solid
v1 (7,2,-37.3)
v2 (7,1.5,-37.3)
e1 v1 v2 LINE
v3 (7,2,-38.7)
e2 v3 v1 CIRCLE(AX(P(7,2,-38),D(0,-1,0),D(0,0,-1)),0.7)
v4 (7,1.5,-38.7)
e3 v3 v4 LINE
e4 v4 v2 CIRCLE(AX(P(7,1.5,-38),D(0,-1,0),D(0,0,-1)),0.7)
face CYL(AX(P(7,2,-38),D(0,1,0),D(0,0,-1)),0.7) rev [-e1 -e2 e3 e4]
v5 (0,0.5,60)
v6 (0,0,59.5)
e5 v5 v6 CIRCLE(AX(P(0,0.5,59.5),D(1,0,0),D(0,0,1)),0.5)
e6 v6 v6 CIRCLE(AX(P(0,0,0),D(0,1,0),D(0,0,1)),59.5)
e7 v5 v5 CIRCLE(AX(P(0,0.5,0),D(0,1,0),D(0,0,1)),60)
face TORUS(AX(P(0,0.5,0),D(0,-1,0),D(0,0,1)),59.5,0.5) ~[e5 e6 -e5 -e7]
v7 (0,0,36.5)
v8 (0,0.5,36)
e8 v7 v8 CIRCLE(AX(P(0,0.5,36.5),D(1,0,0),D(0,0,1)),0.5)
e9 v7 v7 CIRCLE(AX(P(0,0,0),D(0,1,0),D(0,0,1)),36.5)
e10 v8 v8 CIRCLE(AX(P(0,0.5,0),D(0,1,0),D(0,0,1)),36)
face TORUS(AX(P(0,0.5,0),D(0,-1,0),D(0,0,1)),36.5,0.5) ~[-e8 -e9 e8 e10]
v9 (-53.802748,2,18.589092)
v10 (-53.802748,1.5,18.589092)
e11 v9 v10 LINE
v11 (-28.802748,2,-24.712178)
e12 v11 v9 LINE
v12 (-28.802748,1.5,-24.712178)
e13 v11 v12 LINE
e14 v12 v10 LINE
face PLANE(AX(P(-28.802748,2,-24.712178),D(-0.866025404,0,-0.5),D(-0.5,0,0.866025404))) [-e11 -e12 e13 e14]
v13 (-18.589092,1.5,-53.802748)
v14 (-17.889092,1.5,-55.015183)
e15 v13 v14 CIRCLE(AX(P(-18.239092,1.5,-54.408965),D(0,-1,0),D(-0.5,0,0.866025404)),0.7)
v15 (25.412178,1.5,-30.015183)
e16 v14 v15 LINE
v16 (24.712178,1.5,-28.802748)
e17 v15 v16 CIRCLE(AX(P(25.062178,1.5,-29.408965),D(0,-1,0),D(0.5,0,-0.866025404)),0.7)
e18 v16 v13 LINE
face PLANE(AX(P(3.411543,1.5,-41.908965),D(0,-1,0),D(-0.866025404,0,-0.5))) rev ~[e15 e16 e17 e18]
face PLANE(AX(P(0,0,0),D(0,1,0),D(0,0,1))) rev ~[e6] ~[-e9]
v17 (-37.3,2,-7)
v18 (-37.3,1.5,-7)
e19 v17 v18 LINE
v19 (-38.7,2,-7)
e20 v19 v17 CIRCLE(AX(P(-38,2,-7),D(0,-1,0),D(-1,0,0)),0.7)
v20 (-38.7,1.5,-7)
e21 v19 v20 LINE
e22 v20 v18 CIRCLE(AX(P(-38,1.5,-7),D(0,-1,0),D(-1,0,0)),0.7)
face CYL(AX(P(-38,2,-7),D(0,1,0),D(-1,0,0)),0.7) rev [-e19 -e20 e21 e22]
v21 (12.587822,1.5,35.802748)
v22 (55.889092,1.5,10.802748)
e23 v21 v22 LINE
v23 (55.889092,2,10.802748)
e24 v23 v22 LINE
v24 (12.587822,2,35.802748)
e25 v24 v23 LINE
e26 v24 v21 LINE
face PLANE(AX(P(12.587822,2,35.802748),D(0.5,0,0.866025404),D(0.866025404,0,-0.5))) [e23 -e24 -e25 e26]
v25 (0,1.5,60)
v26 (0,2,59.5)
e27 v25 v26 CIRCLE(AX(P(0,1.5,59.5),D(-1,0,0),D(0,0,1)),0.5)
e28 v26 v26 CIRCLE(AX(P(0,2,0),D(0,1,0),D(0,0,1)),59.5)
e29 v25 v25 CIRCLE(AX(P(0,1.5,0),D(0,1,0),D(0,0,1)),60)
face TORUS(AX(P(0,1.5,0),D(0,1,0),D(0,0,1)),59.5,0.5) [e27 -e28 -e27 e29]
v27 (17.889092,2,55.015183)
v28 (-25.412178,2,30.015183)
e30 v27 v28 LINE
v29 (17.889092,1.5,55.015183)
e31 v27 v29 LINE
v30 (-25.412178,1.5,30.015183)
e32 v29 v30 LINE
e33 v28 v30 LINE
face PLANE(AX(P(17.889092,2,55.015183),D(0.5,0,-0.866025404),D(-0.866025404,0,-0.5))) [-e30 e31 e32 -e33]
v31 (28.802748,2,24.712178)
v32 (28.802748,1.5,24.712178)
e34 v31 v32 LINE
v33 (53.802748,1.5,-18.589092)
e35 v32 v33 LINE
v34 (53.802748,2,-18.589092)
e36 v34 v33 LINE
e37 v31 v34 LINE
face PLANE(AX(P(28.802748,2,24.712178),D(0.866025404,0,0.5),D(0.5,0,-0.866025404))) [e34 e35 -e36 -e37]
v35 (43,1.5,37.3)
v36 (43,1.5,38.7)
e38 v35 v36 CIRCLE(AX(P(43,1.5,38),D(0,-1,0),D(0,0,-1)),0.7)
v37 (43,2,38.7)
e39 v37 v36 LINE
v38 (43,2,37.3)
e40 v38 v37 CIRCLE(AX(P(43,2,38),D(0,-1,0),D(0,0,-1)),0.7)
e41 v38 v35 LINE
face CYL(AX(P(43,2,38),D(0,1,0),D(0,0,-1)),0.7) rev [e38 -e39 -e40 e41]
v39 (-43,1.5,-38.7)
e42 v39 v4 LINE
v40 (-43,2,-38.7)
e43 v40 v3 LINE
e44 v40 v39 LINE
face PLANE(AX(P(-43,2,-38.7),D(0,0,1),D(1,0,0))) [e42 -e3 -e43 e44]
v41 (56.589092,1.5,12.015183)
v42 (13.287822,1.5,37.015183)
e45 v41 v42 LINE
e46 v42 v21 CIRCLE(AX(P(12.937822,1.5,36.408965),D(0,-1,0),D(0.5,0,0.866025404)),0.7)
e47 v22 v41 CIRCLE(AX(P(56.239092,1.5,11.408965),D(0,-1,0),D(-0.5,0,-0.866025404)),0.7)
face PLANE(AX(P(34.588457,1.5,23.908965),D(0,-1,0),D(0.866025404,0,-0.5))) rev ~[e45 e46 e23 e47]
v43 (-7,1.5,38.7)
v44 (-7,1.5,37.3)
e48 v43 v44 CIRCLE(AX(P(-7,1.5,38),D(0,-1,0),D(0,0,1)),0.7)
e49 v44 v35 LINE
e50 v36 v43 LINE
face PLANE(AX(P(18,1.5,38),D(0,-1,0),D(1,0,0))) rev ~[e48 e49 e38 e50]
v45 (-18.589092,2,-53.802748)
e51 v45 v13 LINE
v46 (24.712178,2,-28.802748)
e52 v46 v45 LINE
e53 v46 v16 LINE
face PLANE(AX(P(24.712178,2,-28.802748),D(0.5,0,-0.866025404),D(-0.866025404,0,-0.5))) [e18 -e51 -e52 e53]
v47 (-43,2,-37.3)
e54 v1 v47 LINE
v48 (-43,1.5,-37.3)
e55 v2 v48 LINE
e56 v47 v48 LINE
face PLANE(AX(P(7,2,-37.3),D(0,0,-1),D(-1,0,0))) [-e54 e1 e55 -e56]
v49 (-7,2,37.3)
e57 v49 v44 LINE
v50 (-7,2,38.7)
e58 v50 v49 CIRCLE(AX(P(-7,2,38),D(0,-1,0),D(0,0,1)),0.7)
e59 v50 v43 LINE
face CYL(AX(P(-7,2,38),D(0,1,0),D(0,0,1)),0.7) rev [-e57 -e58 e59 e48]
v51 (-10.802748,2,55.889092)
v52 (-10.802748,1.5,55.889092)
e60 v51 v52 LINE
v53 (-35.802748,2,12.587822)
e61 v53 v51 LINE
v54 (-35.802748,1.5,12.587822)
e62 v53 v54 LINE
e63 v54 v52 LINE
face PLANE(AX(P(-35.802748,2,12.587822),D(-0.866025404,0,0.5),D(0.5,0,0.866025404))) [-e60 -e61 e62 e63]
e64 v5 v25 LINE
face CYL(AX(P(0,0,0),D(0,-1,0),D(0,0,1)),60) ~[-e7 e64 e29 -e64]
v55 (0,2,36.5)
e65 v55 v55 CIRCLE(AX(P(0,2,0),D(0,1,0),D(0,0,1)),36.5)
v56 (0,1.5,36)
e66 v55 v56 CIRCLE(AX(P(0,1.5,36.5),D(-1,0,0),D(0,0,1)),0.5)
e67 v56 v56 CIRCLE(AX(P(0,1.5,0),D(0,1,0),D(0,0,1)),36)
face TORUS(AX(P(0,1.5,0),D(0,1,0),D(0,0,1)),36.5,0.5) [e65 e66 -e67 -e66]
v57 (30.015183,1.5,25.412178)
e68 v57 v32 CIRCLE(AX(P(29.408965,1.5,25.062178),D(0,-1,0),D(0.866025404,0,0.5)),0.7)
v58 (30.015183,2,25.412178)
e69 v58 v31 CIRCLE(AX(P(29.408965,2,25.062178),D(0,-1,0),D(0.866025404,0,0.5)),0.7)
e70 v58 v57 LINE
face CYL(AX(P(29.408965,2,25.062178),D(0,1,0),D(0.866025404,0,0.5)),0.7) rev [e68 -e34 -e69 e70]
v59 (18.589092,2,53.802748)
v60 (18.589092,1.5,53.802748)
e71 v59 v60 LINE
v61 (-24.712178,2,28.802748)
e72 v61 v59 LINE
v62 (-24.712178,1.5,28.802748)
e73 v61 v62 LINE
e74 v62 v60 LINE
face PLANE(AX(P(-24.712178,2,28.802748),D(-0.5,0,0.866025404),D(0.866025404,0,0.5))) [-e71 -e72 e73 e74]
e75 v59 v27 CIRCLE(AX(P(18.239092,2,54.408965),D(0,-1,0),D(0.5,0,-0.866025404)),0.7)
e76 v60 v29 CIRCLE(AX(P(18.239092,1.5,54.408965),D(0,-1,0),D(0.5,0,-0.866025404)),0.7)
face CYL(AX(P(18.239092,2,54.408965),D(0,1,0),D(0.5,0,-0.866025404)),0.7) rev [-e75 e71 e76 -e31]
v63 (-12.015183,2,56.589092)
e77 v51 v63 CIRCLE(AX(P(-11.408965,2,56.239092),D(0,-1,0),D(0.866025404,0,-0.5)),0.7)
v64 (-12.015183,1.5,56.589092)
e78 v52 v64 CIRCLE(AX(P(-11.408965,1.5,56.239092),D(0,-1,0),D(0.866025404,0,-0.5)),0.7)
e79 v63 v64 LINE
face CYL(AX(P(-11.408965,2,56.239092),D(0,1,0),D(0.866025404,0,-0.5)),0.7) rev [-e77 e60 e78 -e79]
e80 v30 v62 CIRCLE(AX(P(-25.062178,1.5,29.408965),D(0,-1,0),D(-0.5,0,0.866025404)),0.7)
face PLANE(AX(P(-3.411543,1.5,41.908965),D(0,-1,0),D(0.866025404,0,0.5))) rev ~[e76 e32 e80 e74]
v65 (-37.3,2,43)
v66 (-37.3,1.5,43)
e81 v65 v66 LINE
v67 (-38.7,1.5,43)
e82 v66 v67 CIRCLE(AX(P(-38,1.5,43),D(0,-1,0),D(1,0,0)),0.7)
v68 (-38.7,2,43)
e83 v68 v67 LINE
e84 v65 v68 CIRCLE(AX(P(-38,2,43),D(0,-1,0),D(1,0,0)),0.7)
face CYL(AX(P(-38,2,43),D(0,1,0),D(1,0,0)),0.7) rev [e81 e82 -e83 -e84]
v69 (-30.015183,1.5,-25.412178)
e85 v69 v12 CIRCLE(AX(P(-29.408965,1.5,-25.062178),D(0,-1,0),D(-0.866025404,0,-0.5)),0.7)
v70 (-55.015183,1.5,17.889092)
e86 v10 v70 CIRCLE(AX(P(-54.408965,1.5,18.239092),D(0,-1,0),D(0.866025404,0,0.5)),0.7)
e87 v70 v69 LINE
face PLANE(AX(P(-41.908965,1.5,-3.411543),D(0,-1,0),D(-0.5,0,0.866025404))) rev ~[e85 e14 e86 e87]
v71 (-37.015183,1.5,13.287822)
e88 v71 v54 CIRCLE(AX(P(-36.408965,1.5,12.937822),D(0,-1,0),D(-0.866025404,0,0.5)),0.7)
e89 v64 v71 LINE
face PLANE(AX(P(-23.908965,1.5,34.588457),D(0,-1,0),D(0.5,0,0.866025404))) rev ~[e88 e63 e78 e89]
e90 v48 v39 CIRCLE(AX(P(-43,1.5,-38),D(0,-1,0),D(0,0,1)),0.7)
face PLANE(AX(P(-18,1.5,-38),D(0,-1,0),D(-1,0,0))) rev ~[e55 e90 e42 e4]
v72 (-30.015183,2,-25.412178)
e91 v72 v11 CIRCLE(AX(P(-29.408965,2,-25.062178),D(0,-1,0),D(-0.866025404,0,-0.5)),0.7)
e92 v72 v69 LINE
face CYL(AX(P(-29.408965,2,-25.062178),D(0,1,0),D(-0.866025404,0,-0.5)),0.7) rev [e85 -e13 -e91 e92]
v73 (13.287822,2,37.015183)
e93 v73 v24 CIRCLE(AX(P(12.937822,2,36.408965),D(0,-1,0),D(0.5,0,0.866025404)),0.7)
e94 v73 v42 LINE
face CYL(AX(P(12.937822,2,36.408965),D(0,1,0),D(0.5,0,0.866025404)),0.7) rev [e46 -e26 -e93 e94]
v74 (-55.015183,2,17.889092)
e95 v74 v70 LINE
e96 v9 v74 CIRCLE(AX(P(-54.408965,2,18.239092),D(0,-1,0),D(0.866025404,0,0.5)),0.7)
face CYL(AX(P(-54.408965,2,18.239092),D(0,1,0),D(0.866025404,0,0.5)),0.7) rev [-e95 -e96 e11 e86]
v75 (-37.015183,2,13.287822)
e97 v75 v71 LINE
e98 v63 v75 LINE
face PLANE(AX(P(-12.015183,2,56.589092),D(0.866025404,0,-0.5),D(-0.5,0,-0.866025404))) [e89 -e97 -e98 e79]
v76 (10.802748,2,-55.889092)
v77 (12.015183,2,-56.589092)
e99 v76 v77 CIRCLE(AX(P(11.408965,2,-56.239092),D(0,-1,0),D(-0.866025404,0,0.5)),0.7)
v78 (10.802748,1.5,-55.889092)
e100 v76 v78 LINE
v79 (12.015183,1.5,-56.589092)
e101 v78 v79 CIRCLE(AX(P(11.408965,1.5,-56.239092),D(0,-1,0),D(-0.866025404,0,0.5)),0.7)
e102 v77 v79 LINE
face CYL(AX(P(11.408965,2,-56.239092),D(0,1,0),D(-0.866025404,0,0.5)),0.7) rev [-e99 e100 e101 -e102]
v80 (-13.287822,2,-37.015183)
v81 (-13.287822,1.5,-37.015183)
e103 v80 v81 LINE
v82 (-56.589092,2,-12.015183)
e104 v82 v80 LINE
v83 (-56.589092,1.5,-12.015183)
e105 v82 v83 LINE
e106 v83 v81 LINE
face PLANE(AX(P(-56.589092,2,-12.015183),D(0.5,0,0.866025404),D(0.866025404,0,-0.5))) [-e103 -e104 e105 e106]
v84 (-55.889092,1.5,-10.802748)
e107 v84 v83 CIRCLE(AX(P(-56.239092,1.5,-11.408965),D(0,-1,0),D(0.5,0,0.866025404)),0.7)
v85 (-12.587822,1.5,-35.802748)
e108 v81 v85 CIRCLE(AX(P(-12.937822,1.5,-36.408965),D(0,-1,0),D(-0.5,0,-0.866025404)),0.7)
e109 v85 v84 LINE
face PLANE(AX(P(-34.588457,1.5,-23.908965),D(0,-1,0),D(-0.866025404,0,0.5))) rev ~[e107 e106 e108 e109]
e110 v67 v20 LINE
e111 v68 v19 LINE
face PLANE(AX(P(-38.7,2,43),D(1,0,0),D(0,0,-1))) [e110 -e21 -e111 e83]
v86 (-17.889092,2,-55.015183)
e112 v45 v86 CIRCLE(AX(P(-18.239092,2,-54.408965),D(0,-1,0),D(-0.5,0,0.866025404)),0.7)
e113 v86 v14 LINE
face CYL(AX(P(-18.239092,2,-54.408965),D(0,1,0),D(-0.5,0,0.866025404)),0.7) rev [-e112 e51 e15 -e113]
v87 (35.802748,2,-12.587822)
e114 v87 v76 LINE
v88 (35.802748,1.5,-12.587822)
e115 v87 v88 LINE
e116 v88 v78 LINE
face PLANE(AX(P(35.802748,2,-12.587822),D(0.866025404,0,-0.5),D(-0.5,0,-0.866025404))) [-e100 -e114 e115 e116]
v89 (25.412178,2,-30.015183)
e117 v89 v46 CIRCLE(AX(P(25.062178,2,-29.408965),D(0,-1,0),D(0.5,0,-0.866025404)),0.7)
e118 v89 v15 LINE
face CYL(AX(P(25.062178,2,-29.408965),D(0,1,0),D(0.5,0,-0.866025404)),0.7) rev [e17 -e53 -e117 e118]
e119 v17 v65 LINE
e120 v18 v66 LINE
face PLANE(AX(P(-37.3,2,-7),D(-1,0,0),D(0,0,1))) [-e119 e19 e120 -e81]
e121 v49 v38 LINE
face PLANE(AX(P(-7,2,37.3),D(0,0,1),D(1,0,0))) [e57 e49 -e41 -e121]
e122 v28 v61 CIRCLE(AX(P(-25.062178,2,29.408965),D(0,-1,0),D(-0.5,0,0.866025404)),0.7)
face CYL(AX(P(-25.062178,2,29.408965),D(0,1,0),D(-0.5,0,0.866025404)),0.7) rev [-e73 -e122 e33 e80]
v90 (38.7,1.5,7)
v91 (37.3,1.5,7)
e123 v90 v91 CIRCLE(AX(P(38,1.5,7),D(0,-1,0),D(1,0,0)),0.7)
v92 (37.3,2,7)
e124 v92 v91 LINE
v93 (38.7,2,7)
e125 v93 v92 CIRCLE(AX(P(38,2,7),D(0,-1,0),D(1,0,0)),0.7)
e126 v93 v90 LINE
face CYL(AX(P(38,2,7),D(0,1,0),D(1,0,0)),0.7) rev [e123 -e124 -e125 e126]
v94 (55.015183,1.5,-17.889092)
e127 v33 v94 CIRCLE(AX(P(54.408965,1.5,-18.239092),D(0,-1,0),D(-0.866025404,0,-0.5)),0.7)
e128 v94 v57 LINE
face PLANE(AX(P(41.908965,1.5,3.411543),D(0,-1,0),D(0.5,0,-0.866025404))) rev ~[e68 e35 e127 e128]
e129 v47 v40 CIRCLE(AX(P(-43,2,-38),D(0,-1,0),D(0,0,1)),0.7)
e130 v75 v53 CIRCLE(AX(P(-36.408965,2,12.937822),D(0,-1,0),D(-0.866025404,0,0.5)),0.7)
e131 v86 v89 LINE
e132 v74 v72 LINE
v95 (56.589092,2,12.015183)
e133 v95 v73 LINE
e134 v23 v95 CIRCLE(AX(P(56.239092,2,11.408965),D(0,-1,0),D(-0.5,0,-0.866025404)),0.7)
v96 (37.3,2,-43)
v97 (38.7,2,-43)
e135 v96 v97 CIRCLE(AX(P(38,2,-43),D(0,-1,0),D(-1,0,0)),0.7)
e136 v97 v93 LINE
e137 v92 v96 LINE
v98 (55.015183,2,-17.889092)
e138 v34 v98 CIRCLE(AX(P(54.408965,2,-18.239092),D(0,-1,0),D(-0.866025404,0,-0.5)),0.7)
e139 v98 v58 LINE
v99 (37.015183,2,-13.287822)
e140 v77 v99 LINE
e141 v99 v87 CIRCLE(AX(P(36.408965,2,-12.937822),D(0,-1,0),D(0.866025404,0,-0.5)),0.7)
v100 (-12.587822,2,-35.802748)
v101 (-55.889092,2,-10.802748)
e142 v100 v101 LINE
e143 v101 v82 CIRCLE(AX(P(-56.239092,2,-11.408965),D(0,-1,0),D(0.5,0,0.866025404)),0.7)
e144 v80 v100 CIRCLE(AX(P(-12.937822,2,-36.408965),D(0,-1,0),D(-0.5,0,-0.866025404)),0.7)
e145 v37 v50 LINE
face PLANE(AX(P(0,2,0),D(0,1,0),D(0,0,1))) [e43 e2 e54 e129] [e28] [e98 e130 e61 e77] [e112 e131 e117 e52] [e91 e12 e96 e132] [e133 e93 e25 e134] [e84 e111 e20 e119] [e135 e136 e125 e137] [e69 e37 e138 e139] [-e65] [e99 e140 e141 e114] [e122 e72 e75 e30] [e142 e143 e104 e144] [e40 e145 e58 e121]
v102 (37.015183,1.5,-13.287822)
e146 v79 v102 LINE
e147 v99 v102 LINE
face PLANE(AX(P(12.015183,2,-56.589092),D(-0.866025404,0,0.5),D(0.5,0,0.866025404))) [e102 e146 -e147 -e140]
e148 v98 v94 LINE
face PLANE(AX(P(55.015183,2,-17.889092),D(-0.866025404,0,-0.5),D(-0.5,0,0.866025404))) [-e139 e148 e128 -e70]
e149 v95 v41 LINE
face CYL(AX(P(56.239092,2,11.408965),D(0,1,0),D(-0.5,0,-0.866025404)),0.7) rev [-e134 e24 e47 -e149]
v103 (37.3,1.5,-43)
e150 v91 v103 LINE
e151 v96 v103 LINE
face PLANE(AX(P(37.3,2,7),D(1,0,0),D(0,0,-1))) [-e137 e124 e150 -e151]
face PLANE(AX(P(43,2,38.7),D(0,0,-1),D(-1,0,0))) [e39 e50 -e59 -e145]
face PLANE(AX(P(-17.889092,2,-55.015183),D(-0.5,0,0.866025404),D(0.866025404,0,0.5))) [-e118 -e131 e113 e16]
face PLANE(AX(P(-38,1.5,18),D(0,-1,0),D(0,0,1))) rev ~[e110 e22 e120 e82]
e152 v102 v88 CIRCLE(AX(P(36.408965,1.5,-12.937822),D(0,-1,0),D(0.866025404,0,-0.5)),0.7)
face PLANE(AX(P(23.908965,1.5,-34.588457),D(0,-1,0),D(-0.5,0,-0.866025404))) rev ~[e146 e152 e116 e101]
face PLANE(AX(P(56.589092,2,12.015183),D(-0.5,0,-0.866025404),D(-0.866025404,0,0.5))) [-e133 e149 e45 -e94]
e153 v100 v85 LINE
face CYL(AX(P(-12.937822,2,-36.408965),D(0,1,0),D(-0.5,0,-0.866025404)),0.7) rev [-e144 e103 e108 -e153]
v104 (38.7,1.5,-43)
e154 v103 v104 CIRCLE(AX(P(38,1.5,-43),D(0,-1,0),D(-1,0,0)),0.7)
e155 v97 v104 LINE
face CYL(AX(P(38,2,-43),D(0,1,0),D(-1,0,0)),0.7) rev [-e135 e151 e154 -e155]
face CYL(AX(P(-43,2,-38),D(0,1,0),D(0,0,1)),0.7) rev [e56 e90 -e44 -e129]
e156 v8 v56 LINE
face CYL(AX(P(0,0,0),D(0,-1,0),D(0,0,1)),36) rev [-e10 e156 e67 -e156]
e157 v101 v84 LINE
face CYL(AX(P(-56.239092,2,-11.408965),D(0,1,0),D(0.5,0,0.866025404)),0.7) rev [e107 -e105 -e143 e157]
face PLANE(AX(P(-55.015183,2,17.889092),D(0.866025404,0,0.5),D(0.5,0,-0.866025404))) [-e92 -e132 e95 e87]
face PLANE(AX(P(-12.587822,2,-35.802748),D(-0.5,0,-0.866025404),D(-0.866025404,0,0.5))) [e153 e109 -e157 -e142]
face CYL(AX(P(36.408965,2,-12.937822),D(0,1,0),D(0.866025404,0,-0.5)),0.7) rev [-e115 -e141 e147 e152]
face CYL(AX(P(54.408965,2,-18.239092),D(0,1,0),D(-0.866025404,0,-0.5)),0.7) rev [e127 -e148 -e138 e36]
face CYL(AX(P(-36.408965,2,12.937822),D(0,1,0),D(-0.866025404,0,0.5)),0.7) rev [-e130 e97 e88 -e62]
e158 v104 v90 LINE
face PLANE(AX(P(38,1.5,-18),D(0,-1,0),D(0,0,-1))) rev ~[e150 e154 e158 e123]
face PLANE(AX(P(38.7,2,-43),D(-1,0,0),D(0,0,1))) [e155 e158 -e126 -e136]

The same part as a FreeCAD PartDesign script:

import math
import FreeCAD as App
import Part
import Sketcher
from FreeCAD import Vector


def edges_at(feature, points):
    """Names of the edges that pass closest to the given points."""
    edges = feature.Shape.Edges
    near = lambda p: min(range(len(edges)), key=lambda i: edges[i].distToShape(Part.Vertex(*p))[0])
    return sorted({f"Edge{near(p) + 1}" for p in points})

doc = App.newDocument("Part")
params = doc.addObject("Spreadsheet::Sheet", "Params")
for row, (alias, value) in enumerate([
    ("sketch1_diameter", "120 mm"),
    ("sketch1_diameter2", "72 mm"),
    ("pad1_length", "2 mm"),
    ("sketch2_radius", "0.7 mm"),
    ("sketch2_width", "50 mm"),
    ("pocket1_length", "0.5 mm"),
    ("fillet_radius", "0.5 mm"),
], start=1):
    params.set(f"A{row}", alias)
    params.set(f"B{row}", "=" + value)
    params.setAlias(f"B{row}", alias)

body = doc.addObject("PartDesign::Body", "Body")

# Sketch on XZ plane
sketch1 = doc.addObject("Sketcher::SketchObject", "Sketch")
body.addObject(sketch1)
sketch1.AttachmentSupport = (doc.XZ_Plane, [""])
sketch1.MapMode = "FlatFace"
sketch1.addGeometry([
    Part.Circle(Vector(0, 0, 0), Vector(0, 0, 1), 60),
    Part.Circle(Vector(0, 0, 0), Vector(0, 0, 1), 36),
], False)
sketch1.addConstraint([
    Sketcher.Constraint("Coincident", 0, 3, -1, 1),
    Sketcher.Constraint("Coincident", 1, 3, -1, 1),
    Sketcher.Constraint("Diameter", 0, 120.0),
    Sketcher.Constraint("Diameter", 1, 72.0),
])
sketch1.setExpression("Constraints[2]", "Params.sketch1_diameter")
sketch1.setExpression("Constraints[3]", "Params.sketch1_diameter2")
pad1 = doc.addObject("PartDesign::Pad", "Pad")
body.addObject(pad1)
pad1.Profile = sketch1
pad1.setExpression("Length", "Params.pad1_length")
pad1.Reversed = True

# Sketch on XZ plane
sketch2 = doc.addObject("Sketcher::SketchObject", "Sketch001")
body.addObject(sketch2)
sketch2.AttachmentSupport = (doc.XZ_Plane, [""])
sketch2.MapMode = "FlatFace"
sketch2.AttachmentOffset = App.Placement(Vector(0, 0, -2), App.Rotation())
sketch2.addGeometry([
    Part.LineSegment(Vector(7, -38.7, 0), Vector(-43, -38.7, 0)),
    Part.ArcOfCircle(Part.Circle(Vector(-43, -38, 0), Vector(0, 0, 1), 0.7), math.radians(90), math.radians(270)),
    Part.LineSegment(Vector(-43, -37.3, 0), Vector(7, -37.3, 0)),
    Part.ArcOfCircle(Part.Circle(Vector(7, -38, 0), Vector(0, 0, 1), 0.7), math.radians(-90), math.radians(90)),
], False)
sketch2.addConstraint([
    Sketcher.Constraint("Tangent", 0, 2, 1, 2),
    Sketcher.Constraint("Tangent", 1, 1, 2, 1),
    Sketcher.Constraint("Tangent", 2, 2, 3, 2),
    Sketcher.Constraint("Tangent", 3, 1, 0, 1),
    Sketcher.Constraint("Horizontal", 0),
    Sketcher.Constraint("Horizontal", 2),
    Sketcher.Constraint("Radius", 1, 0.7),
    Sketcher.Constraint("DistanceX", 0, 2, 0, 1, 50.0),
    Sketcher.Constraint("DistanceX", 1, 3, -1, 1, 43.0),
    Sketcher.Constraint("DistanceY", 1, 3, -1, 1, 38.0),
])
sketch2.setExpression("Constraints[6]", "Params.sketch2_radius")
sketch2.setExpression("Constraints[7]", "Params.sketch2_width")
pocket1 = doc.addObject("PartDesign::Pocket", "Pocket")
body.addObject(pocket1)
pocket1.Profile = sketch2
pocket1.setExpression("Length", "Params.pocket1_length")
pocket1.Reversed = True
doc.recompute()

polarpattern = doc.addObject("PartDesign::PolarPattern", "PolarPattern")
body.addObject(polarpattern)
polarpattern.Originals = [pocket1]
polarpattern.Axis = (doc.Y_Axis, [""])
polarpattern.Angle = 360
polarpattern.Occurrences = 12
body.Tip = polarpattern
doc.recompute()

fillet = doc.addObject("PartDesign::Fillet", "Fillet")
body.addObject(fillet)
fillet.Base = (polarpattern, edges_at(polarpattern, [
    (0, 0, -60),
    (0, 2, -60),
    (0, 0, -36),
    (0, 2, -36),
]))
fillet.setExpression("Radius", "Params.fillet_radius")

doc.recompute()
